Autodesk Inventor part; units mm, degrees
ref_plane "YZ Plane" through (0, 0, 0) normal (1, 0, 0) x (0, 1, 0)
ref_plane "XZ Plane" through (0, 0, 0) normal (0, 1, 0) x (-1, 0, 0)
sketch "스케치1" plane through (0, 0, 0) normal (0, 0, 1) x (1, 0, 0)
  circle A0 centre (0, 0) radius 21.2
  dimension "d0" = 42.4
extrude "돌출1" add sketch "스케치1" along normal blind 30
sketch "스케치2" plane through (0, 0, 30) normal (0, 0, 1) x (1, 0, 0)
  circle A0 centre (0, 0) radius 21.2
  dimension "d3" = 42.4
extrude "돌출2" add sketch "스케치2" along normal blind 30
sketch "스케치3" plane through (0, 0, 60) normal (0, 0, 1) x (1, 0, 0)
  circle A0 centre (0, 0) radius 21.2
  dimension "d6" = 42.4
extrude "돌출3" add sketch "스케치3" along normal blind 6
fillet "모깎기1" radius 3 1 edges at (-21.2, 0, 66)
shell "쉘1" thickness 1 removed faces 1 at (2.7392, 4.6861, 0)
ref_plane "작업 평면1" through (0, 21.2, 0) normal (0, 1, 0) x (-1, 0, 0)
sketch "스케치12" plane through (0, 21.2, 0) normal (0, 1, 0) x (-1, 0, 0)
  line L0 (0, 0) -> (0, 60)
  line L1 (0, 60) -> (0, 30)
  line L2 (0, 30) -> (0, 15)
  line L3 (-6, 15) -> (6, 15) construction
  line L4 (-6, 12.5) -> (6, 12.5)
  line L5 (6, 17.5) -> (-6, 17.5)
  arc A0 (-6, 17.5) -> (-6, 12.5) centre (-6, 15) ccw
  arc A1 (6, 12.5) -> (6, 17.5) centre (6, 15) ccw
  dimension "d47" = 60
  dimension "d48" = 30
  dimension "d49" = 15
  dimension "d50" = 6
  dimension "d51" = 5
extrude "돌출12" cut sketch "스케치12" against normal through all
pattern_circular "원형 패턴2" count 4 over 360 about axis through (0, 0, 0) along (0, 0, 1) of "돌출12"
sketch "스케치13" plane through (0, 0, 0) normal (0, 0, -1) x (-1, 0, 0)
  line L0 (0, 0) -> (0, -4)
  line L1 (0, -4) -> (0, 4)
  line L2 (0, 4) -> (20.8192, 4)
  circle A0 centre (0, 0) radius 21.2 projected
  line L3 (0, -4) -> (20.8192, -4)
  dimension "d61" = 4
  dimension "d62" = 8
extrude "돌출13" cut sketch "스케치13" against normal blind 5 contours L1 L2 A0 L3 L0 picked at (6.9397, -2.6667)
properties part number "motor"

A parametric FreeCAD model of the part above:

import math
import FreeCAD as App
import Part
import Sketcher

V = App.Vector


def edges_at(feature, points):
    """Names of the edges that pass closest to the given points."""
    edges = feature.Shape.Edges
    near = lambda p: min(range(len(edges)), key=lambda i: edges[i].distToShape(Part.Vertex(*p))[0])
    return sorted({f"Edge{near(p) + 1}" for p in points})


def faces_at(feature, points):
    """Names of the faces that lie closest to the given points."""
    faces = feature.Shape.Faces
    near = lambda p: min(range(len(faces)), key=lambda i: faces[i].distToShape(Part.Vertex(*p))[0])
    return sorted({f"Face{near(p) + 1}" for p in points})

doc = App.newDocument("Part")
params = doc.addObject("Spreadsheet::Sheet", "Params")
for row, (alias, value) in enumerate([
    ("sketch1_diameter", "42.4 mm"),
    ("pad1_length", "30 mm"),
    ("sketch2_diameter", "42.4 mm"),
    ("pad2_length", "30 mm"),
    ("sketch3_diameter", "42.4 mm"),
    ("pad3_length", "6 mm"),
    ("fillet_radius", "3 mm"),
    ("thickness_wall", "1 mm"),
    ("sketch4_radius", "2.5 mm"),
    ("sketch5_height", "8 mm"),
    ("sketch5_radius", "21.2 mm"),
    ("pocket2_length", "5 mm"),
], start=1):
    params.set(f"A{row}", alias)
    params.set(f"B{row}", "=" + value)
    params.setAlias(f"B{row}", alias)

body = doc.addObject("PartDesign::Body", "Body")

# Sketch on XY plane
sketch1 = doc.addObject("Sketcher::SketchObject", "Sketch")
body.addObject(sketch1)
sketch1.AttachmentSupport = (doc.XY_Plane, [""])
sketch1.MapMode = "FlatFace"
sketch1.addGeometry(Part.Circle(V(0, 0, 0), V(0, 0, 1), 21), False)
sketch1.addConstraint(Sketcher.Constraint("Coincident", 0, 3, -1, 1))
sketch1.addConstraint(Sketcher.Constraint("Diameter", 0, 42.4))
sketch1.setExpression("Constraints[1]", "Params.sketch1_diameter")
pad1 = doc.addObject("PartDesign::Pad", "Pad")
body.addObject(pad1)
pad1.Profile = sketch1
pad1.setExpression("Length", "Params.pad1_length")

# Sketch on XY plane
sketch2 = doc.addObject("Sketcher::SketchObject", "Sketch001")
body.addObject(sketch2)
sketch2.AttachmentSupport = (doc.XY_Plane, [""])
sketch2.MapMode = "FlatFace"
sketch2.AttachmentOffset = App.Placement(V(0, 0, 30), App.Rotation())
sketch2.addGeometry(Part.Circle(V(0, 0, 0), V(0, 0, 1), 21), False)
sketch2.addConstraint(Sketcher.Constraint("Coincident", 0, 3, -1, 1))
sketch2.addConstraint(Sketcher.Constraint("Diameter", 0, 42.4))
sketch2.setExpression("Constraints[1]", "Params.sketch2_diameter")
pad2 = doc.addObject("PartDesign::Pad", "Pad001")
body.addObject(pad2)
pad2.Profile = sketch2
pad2.setExpression("Length", "Params.pad2_length")

# Sketch on XY plane
sketch3 = doc.addObject("Sketcher::SketchObject", "Sketch002")
body.addObject(sketch3)
sketch3.AttachmentSupport = (doc.XY_Plane, [""])
sketch3.MapMode = "FlatFace"
sketch3.AttachmentOffset = App.Placement(V(0, 0, 60), App.Rotation())
sketch3.addGeometry(Part.Circle(V(0, 0, 0), V(0, 0, 1), 21), False)
sketch3.addConstraint(Sketcher.Constraint("Coincident", 0, 3, -1, 1))
sketch3.addConstraint(Sketcher.Constraint("Diameter", 0, 42.4))
sketch3.setExpression("Constraints[1]", "Params.sketch3_diameter")
pad3 = doc.addObject("PartDesign::Pad", "Pad002")
body.addObject(pad3)
pad3.Profile = sketch3
pad3.setExpression("Length", "Params.pad3_length")
doc.recompute()

fillet = doc.addObject("PartDesign::Fillet", "Fillet")
body.addObject(fillet)
fillet.Base = (pad3, edges_at(pad3, [(-21.2, 0, 66)]))
fillet.setExpression("Radius", "Params.fillet_radius")
doc.recompute()

thickness = doc.addObject("PartDesign::Thickness", "Thickness")
body.addObject(thickness)
thickness.Base = (fillet, faces_at(fillet, [(2.739, 4.686, 0)]))
thickness.setExpression("Value", "Params.thickness_wall")
thickness.Reversed = True
thickness.Join = "Intersection"

# Sketch on XZ plane
sketch4 = doc.addObject("Sketcher::SketchObject", "Sketch003")
body.addObject(sketch4)
sketch4.AttachmentSupport = (doc.XZ_Plane, [""])
sketch4.MapMode = "FlatFace"
sketch4.AttachmentOffset = App.Placement(V(0, 0, -21.2), App.Rotation())
sketch4.addGeometry(Part.LineSegment(V(6, 12.5, 0), V(-6, 12.5, 0)), False)
sketch4.addGeometry(Part.ArcOfCircle(Part.Circle(V(-6, 15, 0), V(0, 0, 1), 2.5), math.radians(90), math.radians(270)), False)
sketch4.addGeometry(Part.LineSegment(V(-6, 17.5, 0), V(6, 17.5, 0)), False)
sketch4.addGeometry(Part.ArcOfCircle(Part.Circle(V(6, 15, 0), V(0, 0, 1), 2.5), math.radians(-90), math.radians(90)), False)
sketch4.addConstraint(Sketcher.Constraint("Tangent", 0, 2, 1, 2))
sketch4.addConstraint(Sketcher.Constraint("Tangent", 1, 1, 2, 1))
sketch4.addConstraint(Sketcher.Constraint("Tangent", 2, 2, 3, 2))
sketch4.addConstraint(Sketcher.Constraint("Tangent", 3, 1, 0, 1))
sketch4.addConstraint(Sketcher.Constraint("Horizontal", 0))
sketch4.addConstraint(Sketcher.Constraint("Horizontal", 2))
sketch4.addConstraint(Sketcher.Constraint("Radius", 1, 2.5))
sketch4.addConstraint(Sketcher.Constraint("DistanceX", 1, 3, -1, 1, 6.0))
sketch4.addConstraint(Sketcher.Constraint("DistanceY", -1, 1, 1, 3, 15.0))
sketch4.addConstraint(Sketcher.Constraint("DistanceX", -1, 1, 3, 3, 6.0))
sketch4.setExpression("Constraints[6]", "Params.sketch4_radius")
pocket1 = doc.addObject("PartDesign::Pocket", "Pocket")
body.addObject(pocket1)
pocket1.Profile = sketch4
pocket1.Type = "ThroughAll"
pocket1.Reversed = True
doc.recompute()

polarpattern = doc.addObject("PartDesign::PolarPattern", "PolarPattern")
body.addObject(polarpattern)
polarpattern.Originals = [pocket1]
polarpattern.Axis = (doc.Z_Axis, [""])
polarpattern.Angle = 360
polarpattern.Occurrences = 4
body.Tip = polarpattern

# Sketch on XY plane
sketch5 = doc.addObject("Sketcher::SketchObject", "Sketch004")
body.addObject(sketch5)
sketch5.AttachmentSupport = (doc.XY_Plane, [""])
sketch5.MapMode = "FlatFace"
sketch5.addGeometry(Part.LineSegment(V(0, 4, 0), V(0, -4, 0)), False)
sketch5.addGeometry(Part.LineSegment(V(0, -4, 0), V(-21, -4, 0)), False)
sketch5.addGeometry(Part.ArcOfCircle(Part.Circle(V(0, 0, 0), V(0, 0, 1), 21), math.radians(169), math.radians(191)), False)
sketch5.addGeometry(Part.LineSegment(V(-21, 4, 0), V(0, 4, 0)), False)
sketch5.addConstraint(Sketcher.Constraint("Coincident", 0, 2, 1, 1))
sketch5.addConstraint(Sketcher.Constraint("Coincident", 1, 2, 2, 2))
sketch5.addConstraint(Sketcher.Constraint("Coincident", 2, 1, 3, 1))
sketch5.addConstraint(Sketcher.Constraint("Coincident", 3, 2, 0, 1))
sketch5.addConstraint(Sketcher.Constraint("Vertical", 0))
sketch5.addConstraint(Sketcher.Constraint("Horizontal", 1))
sketch5.addConstraint(Sketcher.Constraint("Horizontal", 3))
sketch5.addConstraint(Sketcher.Constraint("Coincident", 2, 3, -1, 1))
sketch5.addConstraint(Sketcher.Constraint("Symmetric", 0, 2, 3, 2, -1, 1))
sketch5.addConstraint(Sketcher.Constraint("DistanceY", 0, 2, 0, 1, 8.0))
sketch5.addConstraint(Sketcher.Constraint("Radius", 2, 21.2))
sketch5.setExpression("Constraints[9]", "Params.sketch5_height")
sketch5.setExpression("Constraints[10]", "Params.sketch5_radius")
pocket2 = doc.addObject("PartDesign::Pocket", "Pocket001")
body.addObject(pocket2)
pocket2.Profile = sketch5
pocket2.setExpression("Length", "Params.pocket2_length")
pocket2.Reversed = True

doc.recompute()
